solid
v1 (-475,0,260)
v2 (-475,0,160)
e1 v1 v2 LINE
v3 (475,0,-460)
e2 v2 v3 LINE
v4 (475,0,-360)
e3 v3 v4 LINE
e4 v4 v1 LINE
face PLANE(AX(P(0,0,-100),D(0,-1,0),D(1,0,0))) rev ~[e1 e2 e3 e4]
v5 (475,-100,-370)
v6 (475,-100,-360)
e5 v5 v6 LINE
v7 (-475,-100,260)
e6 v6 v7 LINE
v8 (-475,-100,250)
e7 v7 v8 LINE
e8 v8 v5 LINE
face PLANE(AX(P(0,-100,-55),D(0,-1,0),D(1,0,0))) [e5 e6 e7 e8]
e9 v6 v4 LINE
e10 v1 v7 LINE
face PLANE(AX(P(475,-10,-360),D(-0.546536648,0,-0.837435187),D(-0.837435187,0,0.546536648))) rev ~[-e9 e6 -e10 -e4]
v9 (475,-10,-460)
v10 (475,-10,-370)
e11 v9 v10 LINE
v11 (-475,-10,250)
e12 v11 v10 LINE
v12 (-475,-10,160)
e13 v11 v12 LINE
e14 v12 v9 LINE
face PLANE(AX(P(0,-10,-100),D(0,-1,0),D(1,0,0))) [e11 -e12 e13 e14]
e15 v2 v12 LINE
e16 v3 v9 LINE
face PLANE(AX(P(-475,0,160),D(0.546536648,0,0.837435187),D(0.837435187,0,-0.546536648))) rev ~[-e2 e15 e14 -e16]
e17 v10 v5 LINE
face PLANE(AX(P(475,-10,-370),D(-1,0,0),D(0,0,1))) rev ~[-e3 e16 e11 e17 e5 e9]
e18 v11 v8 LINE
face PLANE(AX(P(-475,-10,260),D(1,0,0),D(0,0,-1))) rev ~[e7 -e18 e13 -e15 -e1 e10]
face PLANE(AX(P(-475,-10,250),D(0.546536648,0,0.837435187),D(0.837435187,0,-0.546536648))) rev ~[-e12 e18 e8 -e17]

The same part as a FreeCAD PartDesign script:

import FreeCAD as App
import Part
import Sketcher

V = App.Vector


def add_polygon(sketch, points):
    """Adds a closed chain of lines whose ends are joined by coincident constraints."""
    first, n = sketch.GeometryCount, len(points)
    for a, b in zip(points, points[1:] + points[:1]):
        sketch.addGeometry(Part.LineSegment(App.Vector(*a, 0), App.Vector(*b, 0)), False)
    for i in range(n):
        sketch.addConstraint(Sketcher.Constraint("Coincident", first + i, 2, first + (i + 1) % n, 1))

doc = App.newDocument("Part")
params = doc.addObject("Spreadsheet::Sheet", "Params")
for row, (alias, value) in enumerate([
    ("sketch1_height", "100 mm"),
    ("pad1_length", "10 mm"),
    ("sketch2_height", "10 mm"),
    ("pad2_length", "90 mm"),
], start=1):
    params.set(f"A{row}", alias)
    params.set(f"B{row}", "=" + value)
    params.setAlias(f"B{row}", alias)

body = doc.addObject("PartDesign::Body", "Body")

sketch1 = body.newObject("Sketcher::SketchObject", "Sketch")
sketch1.AttachmentSupport = (doc.getObject("XZ_Plane"), [""])
sketch1.MapMode = "FlatFace"
add_polygon(sketch1, [(475, -360), (-475, 260), (-475, 160), (475, -460)])
sketch1.addConstraint(Sketcher.Constraint("Vertical", 1))
sketch1.addConstraint(Sketcher.Constraint("Vertical", 3))
sketch1.addConstraint(Sketcher.Constraint("Parallel", 0, 2))
sketch1.addConstraint(Sketcher.Constraint("DistanceY", 1, 2, 1, 1, 100.0))
sketch1.addConstraint(Sketcher.Constraint("DistanceX", 0, 2, -1, 1, 475.0))
sketch1.addConstraint(Sketcher.Constraint("DistanceY", -1, 1, 0, 2, 260.0))
sketch1.addConstraint(Sketcher.Constraint("DistanceX", -1, 1, 2, 2, 475.0))
sketch1.addConstraint(Sketcher.Constraint("DistanceY", 2, 2, -1, 1, 460.0))
sketch1.setExpression("Constraints[7]", "Params.sketch1_height")
pad1 = body.newObject("PartDesign::Pad", "Pad")
pad1.Profile = sketch1
pad1.setExpression("Length", "Params.pad1_length")

sketch2 = body.newObject("Sketcher::SketchObject", "Sketch001")
sketch2.AttachmentSupport = (doc.getObject("XZ_Plane"), [""])
sketch2.MapMode = "FlatFace"
sketch2.AttachmentOffset = App.Placement(V(0, 0, 10), App.Rotation())
add_polygon(sketch2, [(475, -360), (-475, 260), (-475, 250), (475, -370)])
sketch2.addConstraint(Sketcher.Constraint("Vertical", 1))
sketch2.addConstraint(Sketcher.Constraint("Vertical", 3))
sketch2.addConstraint(Sketcher.Constraint("Parallel", 0, 2))
sketch2.addConstraint(Sketcher.Constraint("DistanceY", 1, 2, 1, 1, 10.0))
sketch2.addConstraint(Sketcher.Constraint("DistanceX", 0, 2, -1, 1, 475.0))
sketch2.addConstraint(Sketcher.Constraint("DistanceY", -1, 1, 0, 2, 260.0))
sketch2.addConstraint(Sketcher.Constraint("DistanceX", -1, 1, 2, 2, 475.0))
sketch2.addConstraint(Sketcher.Constraint("DistanceY", 2, 2, -1, 1, 370.0))
sketch2.setExpression("Constraints[7]", "Params.sketch2_height")
pad2 = body.newObject("PartDesign::Pad", "Pad001")
pad2.Profile = sketch2
pad2.setExpression("Length", "Params.pad2_length")

doc.recompute()
